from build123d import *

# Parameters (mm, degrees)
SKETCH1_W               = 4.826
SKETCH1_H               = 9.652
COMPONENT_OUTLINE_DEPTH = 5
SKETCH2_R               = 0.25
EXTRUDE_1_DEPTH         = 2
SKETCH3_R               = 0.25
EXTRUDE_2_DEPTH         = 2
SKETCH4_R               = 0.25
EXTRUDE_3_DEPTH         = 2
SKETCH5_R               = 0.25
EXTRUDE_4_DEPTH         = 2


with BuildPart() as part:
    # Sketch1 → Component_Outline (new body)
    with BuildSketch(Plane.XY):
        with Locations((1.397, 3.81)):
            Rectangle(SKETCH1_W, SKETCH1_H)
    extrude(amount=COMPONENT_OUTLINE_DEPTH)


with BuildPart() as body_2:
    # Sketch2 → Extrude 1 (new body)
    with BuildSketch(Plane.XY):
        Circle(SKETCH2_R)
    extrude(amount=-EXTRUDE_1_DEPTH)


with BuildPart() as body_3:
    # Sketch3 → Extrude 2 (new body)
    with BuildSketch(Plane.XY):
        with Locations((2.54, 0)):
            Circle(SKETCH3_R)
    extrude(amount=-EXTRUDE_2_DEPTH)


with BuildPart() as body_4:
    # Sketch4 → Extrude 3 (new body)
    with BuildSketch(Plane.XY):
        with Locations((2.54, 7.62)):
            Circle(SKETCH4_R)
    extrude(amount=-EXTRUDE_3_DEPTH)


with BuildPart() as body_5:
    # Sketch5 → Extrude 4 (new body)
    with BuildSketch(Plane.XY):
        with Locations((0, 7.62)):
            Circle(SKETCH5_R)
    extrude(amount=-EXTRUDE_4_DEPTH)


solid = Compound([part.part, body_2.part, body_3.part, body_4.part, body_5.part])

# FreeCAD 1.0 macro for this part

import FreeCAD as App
import Part
import Sketcher

V = App.Vector
Q = App.Units.Quantity

doc = App.newDocument("Part")
body = doc.addObject("PartDesign::Body", "Body")

# Sketch on XY plane
sketch1 = body.newObject("Sketcher::SketchObject", "Sketch")
sketch1.AttachmentSupport = (doc.getObject("XY_Plane"), [""])
sketch1.MapMode = "FlatFace"
sketch1.addGeometry(Part.LineSegment(V(-1, 8.6, 0), V(-1, -1, 0)), False)
sketch1.addGeometry(Part.LineSegment(V(-1, -1, 0), V(3.8, -1, 0)), False)
sketch1.addGeometry(Part.LineSegment(V(3.8, -1, 0), V(3.8, 8.6, 0)), False)
sketch1.addGeometry(Part.LineSegment(V(3.8, 8.6, 0), V(-1, 8.6, 0)), False)
sketch1.addConstraint(Sketcher.Constraint("Coincident", 0, 2, 1, 1))
sketch1.addConstraint(Sketcher.Constraint("Coincident", 1, 2, 2, 1))
sketch1.addConstraint(Sketcher.Constraint("Coincident", 2, 2, 3, 1))
sketch1.addConstraint(Sketcher.Constraint("Coincident", 3, 2, 0, 1))
sketch1.addConstraint(Sketcher.Constraint("Vertical", 0))
sketch1.addConstraint(Sketcher.Constraint("Horizontal", 1))
sketch1.addConstraint(Sketcher.Constraint("Vertical", 2))
sketch1.addConstraint(Sketcher.Constraint("Horizontal", 3))
sketch1.addConstraint(Sketcher.Constraint("DistanceX", 1, 1, 1, 2, Q("4.826 mm")))
sketch1.addConstraint(Sketcher.Constraint("DistanceY", 0, 2, 0, 1, Q("9.652 mm")))
sketch1.addConstraint(Sketcher.Constraint("DistanceX", -1, 1, 1, 2, Q("3.81 mm")))
sketch1.addConstraint(Sketcher.Constraint("DistanceY", 0, 2, -1, 1, Q("1.016 mm")))
pad1 = body.newObject("PartDesign::Pad", "Pad")
pad1.Profile = sketch1
pad1.Length = 5
body2 = doc.addObject("PartDesign::Body", "Body001")

# Sketch on XY plane
sketch2 = body2.newObject("Sketcher::SketchObject", "Sketch001")
sketch2.AttachmentSupport = (doc.getObject("XY_Plane001"), [""])
sketch2.MapMode = "FlatFace"
sketch2.addGeometry(Part.Circle(V(0, 0, 0), V(0, 0, 1), 0.25), False)
sketch2.addConstraint(Sketcher.Constraint("Coincident", 0, 3, -1, 1))
sketch2.addConstraint(Sketcher.Constraint("Diameter", 0, Q("0.5 mm")))
pad2 = body2.newObject("PartDesign::Pad", "Pad001")
pad2.Profile = sketch2
pad2.Length = 2
pad2.Reversed = True
body3 = doc.addObject("PartDesign::Body", "Body002")

# Sketch on XY plane
sketch3 = body3.newObject("Sketcher::SketchObject", "Sketch002")
sketch3.AttachmentSupport = (doc.getObject("XY_Plane002"), [""])
sketch3.MapMode = "FlatFace"
sketch3.addGeometry(Part.Circle(V(2.54, 0, 0), V(0, 0, 1), 0.25), False)
sketch3.addConstraint(Sketcher.Constraint("PointOnObject", 0, 3, -1))
sketch3.addConstraint(Sketcher.Constraint("Diameter", 0, Q("0.5 mm")))
sketch3.addConstraint(Sketcher.Constraint("DistanceX", -1, 1, 0, 3, Q("2.54 mm")))
pad3 = body3.newObject("PartDesign::Pad", "Pad002")
pad3.Profile = sketch3
pad3.Length = 2
pad3.Reversed = True
body4 = doc.addObject("PartDesign::Body", "Body003")

# Sketch on XY plane
sketch4 = body4.newObject("Sketcher::SketchObject", "Sketch003")
sketch4.AttachmentSupport = (doc.getObject("XY_Plane003"), [""])
sketch4.MapMode = "FlatFace"
sketch4.addGeometry(Part.Circle(V(2.54, 7.62, 0), V(0, 0, 1), 0.25), False)
sketch4.addConstraint(Sketcher.Constraint("Diameter", 0, Q("0.5 mm")))
sketch4.addConstraint(Sketcher.Constraint("DistanceX", -1, 1, 0, 3, Q("2.54 mm")))
sketch4.addConstraint(Sketcher.Constraint("DistanceY", -1, 1, 0, 3, Q("7.62 mm")))
pad4 = body4.newObject("PartDesign::Pad", "Pad003")
pad4.Profile = sketch4
pad4.Length = 2
pad4.Reversed = True
body5 = doc.addObject("PartDesign::Body", "Body004")

# Sketch on XY plane
sketch5 = body5.newObject("Sketcher::SketchObject", "Sketch004")
sketch5.AttachmentSupport = (doc.getObject("XY_Plane004"), [""])
sketch5.MapMode = "FlatFace"
sketch5.addGeometry(Part.Circle(V(0, 7.62, 0), V(0, 0, 1), 0.25), False)
sketch5.addConstraint(Sketcher.Constraint("PointOnObject", 0, 3, -2))
sketch5.addConstraint(Sketcher.Constraint("Diameter", 0, Q("0.5 mm")))
sketch5.addConstraint(Sketcher.Constraint("DistanceY", -1, 1, 0, 3, Q("7.62 mm")))
pad5 = body5.newObject("PartDesign::Pad", "Pad004")
pad5.Profile = sketch5
pad5.Length = 2
pad5.Reversed = True

doc.recompute()
